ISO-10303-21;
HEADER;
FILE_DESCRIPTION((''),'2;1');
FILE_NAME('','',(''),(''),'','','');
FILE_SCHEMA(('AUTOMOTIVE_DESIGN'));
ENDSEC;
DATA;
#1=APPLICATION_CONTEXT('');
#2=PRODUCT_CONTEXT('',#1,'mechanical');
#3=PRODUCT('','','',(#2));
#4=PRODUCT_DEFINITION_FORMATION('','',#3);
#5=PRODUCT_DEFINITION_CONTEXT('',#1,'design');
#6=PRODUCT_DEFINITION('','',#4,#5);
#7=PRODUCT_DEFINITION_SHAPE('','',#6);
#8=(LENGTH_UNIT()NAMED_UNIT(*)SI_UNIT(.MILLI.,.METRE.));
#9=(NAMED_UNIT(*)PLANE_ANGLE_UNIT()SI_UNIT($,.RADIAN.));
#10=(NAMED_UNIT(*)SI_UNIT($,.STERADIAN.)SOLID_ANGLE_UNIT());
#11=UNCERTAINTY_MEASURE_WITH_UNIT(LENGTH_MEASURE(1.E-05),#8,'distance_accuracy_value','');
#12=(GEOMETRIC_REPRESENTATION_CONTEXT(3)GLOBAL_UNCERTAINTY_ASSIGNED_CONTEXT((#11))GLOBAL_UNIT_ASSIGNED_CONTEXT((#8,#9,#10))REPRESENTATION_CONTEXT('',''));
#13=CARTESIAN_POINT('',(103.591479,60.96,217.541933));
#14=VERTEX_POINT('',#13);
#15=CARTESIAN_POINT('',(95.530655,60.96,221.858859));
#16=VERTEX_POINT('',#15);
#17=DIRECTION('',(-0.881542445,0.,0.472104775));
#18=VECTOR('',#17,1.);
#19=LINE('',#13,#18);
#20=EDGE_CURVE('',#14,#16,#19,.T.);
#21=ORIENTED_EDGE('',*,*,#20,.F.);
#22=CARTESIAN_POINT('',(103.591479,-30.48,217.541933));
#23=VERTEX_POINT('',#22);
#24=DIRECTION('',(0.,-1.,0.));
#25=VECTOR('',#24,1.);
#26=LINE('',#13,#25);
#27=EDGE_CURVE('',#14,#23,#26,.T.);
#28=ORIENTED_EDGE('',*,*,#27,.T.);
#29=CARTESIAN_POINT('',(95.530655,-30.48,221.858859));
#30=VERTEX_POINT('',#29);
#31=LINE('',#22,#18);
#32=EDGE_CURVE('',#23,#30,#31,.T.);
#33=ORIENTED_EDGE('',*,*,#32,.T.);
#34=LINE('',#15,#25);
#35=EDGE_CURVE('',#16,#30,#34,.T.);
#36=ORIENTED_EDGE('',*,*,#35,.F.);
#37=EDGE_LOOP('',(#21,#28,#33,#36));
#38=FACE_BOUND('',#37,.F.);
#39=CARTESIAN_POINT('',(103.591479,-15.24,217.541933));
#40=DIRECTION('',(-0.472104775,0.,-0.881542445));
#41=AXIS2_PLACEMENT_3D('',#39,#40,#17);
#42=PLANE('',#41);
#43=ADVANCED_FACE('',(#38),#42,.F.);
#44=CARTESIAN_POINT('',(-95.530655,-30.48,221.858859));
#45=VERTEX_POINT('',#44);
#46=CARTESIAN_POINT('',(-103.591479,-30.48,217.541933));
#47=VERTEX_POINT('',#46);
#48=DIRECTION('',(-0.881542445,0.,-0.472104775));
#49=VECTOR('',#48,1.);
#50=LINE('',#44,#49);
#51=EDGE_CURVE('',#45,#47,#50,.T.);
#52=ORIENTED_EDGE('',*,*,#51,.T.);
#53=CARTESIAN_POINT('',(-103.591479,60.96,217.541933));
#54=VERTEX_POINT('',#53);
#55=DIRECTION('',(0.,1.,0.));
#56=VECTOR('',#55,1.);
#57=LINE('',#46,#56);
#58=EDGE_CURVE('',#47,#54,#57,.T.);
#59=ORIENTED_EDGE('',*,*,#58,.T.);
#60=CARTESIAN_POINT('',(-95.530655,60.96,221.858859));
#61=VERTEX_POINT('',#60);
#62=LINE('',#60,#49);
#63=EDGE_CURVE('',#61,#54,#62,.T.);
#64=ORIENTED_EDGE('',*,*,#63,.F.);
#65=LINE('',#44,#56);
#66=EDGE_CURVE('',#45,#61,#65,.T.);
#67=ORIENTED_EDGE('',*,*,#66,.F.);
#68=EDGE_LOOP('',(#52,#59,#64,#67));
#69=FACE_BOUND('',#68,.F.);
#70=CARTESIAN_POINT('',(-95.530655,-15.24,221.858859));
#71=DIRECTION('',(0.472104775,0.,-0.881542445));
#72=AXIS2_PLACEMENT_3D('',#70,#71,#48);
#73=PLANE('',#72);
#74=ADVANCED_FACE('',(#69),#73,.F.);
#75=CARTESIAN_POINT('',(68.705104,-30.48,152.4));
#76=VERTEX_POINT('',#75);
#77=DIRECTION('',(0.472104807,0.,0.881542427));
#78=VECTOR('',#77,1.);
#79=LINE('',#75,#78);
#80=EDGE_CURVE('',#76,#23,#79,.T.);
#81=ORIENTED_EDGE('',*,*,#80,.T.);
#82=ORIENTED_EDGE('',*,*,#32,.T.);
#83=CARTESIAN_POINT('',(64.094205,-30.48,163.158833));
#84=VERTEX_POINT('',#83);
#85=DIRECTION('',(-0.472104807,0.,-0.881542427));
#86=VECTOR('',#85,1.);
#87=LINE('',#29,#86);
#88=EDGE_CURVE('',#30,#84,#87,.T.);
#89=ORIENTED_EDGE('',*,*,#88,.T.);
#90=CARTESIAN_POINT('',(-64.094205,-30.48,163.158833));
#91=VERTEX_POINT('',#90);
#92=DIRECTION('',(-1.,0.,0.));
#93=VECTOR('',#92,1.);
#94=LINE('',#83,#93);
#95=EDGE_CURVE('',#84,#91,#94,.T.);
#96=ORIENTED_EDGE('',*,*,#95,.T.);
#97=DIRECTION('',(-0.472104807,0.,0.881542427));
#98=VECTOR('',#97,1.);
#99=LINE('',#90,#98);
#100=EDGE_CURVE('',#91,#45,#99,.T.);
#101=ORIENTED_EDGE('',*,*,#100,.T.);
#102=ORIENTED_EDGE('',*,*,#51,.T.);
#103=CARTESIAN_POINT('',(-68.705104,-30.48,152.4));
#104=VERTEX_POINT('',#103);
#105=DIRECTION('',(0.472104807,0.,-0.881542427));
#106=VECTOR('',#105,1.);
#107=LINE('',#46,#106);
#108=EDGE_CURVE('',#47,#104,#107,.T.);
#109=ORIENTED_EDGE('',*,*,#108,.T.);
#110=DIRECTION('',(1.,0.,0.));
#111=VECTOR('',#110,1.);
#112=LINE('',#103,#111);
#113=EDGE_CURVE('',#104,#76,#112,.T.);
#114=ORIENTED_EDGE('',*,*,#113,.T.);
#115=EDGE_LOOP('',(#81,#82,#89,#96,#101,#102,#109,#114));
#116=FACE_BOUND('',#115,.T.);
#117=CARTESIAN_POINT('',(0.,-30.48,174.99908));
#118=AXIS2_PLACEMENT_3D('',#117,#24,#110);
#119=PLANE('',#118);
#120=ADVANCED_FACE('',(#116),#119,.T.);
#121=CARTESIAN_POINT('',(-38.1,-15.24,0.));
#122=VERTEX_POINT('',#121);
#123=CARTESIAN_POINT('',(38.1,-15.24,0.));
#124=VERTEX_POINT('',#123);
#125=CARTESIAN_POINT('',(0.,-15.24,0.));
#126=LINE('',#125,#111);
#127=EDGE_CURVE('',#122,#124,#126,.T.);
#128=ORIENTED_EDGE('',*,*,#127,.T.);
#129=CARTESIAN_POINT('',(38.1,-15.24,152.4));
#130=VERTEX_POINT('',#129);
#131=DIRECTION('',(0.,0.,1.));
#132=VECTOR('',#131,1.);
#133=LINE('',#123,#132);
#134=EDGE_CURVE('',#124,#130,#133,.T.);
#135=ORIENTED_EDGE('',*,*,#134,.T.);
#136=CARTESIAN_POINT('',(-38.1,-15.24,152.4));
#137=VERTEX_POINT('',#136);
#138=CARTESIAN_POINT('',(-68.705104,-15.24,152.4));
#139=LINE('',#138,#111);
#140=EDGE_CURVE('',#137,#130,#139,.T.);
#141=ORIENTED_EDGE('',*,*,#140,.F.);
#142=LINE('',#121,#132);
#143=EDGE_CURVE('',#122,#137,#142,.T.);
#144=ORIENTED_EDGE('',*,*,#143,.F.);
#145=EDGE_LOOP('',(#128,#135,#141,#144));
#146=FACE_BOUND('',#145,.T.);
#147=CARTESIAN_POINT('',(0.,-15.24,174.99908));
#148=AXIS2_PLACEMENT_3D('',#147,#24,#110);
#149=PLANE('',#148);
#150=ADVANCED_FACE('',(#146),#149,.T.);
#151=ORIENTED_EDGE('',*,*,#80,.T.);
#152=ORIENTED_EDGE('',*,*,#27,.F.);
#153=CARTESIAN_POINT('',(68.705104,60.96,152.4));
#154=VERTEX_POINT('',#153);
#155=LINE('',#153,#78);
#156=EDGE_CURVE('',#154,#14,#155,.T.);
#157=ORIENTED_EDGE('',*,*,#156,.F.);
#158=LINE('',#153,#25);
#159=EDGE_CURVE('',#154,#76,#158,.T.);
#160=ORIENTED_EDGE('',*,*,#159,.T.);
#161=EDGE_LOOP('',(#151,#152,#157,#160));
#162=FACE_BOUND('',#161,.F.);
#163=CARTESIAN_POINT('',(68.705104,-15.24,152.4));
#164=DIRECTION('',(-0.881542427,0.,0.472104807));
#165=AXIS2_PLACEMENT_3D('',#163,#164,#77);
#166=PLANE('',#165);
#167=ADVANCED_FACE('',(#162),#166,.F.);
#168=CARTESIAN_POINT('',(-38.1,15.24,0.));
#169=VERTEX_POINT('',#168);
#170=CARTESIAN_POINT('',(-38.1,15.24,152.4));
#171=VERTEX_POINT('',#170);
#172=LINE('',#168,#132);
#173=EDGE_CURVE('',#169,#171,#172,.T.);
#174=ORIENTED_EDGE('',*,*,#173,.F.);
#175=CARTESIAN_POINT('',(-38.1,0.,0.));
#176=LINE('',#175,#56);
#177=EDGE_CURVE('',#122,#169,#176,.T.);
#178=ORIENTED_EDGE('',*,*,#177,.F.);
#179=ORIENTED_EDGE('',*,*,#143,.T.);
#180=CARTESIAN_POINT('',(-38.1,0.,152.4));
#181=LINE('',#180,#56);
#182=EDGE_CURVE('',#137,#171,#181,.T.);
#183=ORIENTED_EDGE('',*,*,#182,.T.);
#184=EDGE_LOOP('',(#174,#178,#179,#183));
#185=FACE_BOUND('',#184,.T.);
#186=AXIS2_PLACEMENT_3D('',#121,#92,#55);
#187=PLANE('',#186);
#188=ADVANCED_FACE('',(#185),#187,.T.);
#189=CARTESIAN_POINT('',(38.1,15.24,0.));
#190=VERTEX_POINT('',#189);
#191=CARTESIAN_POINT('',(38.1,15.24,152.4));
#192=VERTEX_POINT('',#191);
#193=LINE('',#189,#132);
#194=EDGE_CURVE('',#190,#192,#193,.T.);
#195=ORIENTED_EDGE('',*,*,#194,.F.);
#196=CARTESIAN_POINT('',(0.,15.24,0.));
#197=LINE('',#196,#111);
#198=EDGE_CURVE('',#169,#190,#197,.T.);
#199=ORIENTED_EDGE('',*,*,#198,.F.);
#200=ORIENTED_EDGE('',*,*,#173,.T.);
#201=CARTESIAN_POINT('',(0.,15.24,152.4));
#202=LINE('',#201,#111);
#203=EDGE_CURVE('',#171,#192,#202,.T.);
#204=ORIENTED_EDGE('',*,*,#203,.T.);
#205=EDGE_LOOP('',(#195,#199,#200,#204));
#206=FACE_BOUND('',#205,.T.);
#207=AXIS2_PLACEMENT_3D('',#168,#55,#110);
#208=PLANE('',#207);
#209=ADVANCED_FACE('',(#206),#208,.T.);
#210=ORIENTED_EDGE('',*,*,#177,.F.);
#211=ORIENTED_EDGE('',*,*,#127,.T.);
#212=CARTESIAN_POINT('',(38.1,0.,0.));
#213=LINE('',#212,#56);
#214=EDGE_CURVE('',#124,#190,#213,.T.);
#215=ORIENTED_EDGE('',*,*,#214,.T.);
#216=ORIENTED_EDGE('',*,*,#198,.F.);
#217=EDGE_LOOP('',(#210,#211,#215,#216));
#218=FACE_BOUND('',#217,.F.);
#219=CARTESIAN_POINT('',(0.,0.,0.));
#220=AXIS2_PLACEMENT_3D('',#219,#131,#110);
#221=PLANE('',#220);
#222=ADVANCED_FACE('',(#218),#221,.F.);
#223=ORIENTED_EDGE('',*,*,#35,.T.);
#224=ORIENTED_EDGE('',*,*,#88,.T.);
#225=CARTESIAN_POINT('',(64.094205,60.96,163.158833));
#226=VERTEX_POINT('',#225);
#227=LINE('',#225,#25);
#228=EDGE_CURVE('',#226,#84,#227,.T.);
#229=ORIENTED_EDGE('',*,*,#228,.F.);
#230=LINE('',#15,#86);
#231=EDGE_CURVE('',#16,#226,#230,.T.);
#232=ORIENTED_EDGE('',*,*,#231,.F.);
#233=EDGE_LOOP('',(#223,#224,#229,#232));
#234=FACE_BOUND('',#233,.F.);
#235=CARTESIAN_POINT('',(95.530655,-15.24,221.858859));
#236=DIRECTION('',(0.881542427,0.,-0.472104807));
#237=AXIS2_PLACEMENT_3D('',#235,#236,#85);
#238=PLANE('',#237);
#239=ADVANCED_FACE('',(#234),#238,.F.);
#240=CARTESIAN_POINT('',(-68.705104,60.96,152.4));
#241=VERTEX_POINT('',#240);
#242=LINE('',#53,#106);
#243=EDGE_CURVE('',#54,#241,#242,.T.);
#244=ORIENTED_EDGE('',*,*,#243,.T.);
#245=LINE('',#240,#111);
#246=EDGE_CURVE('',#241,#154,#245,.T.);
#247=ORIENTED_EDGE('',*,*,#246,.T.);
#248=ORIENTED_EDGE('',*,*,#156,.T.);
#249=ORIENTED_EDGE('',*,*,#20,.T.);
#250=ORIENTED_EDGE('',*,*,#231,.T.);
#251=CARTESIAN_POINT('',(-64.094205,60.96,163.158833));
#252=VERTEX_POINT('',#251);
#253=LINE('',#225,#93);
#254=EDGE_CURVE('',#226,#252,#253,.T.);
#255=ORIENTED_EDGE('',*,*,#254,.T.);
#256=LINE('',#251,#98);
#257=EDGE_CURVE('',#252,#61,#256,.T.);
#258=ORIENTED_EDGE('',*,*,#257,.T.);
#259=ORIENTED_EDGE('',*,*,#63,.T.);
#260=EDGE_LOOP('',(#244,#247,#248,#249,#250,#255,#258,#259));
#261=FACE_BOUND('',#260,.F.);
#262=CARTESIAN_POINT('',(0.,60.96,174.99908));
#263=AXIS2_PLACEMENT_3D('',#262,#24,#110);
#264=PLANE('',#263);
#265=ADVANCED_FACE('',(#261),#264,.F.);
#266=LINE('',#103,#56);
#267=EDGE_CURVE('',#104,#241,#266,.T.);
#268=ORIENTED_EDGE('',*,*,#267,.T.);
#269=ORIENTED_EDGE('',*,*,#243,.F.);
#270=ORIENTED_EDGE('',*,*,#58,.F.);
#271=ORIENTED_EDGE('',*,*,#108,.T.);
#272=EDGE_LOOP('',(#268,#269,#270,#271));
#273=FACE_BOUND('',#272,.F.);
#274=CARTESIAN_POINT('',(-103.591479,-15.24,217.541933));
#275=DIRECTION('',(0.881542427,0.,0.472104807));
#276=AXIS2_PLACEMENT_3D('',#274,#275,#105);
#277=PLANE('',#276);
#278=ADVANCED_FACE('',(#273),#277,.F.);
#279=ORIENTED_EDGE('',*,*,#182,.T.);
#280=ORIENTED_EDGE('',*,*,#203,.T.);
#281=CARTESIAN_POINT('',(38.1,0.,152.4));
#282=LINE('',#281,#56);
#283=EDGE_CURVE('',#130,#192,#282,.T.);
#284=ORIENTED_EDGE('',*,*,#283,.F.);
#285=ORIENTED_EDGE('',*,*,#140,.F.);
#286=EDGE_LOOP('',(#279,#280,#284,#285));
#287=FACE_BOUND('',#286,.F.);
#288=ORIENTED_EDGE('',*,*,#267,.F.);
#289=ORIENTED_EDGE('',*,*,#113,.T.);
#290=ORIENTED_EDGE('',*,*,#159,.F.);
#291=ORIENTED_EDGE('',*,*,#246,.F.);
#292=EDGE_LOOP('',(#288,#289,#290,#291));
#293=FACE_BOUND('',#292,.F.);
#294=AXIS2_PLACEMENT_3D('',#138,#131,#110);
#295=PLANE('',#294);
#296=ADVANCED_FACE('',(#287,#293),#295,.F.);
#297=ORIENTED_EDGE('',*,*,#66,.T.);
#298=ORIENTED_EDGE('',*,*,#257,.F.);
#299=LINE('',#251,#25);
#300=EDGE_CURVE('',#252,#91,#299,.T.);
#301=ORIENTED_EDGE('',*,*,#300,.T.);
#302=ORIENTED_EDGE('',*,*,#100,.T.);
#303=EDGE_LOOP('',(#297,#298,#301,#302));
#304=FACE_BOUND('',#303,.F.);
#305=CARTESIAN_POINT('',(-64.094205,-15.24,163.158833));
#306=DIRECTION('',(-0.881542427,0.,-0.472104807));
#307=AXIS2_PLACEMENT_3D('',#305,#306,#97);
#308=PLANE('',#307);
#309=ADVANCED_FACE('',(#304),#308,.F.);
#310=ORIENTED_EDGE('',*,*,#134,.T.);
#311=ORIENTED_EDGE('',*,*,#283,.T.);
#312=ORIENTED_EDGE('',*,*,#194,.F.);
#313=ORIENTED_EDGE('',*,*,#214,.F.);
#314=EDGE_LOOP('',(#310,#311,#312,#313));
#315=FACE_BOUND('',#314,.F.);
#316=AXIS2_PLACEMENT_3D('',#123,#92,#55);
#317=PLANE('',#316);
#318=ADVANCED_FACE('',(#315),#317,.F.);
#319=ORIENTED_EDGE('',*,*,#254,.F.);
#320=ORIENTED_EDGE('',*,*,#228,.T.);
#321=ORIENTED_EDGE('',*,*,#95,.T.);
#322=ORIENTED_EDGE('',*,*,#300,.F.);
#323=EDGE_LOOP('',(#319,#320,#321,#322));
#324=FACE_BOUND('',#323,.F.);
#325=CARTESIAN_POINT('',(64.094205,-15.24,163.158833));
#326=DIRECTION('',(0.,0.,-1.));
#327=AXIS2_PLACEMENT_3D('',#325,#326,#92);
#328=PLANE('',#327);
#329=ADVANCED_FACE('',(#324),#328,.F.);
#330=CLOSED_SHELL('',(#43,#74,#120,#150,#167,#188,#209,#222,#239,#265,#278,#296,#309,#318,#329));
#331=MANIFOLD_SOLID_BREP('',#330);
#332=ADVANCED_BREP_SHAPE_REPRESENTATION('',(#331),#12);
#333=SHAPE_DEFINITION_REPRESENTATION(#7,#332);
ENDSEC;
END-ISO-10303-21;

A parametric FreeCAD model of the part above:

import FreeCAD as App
import Part
import Sketcher
Q = App.Units.Quantity


def add_polygon(sketch, points):
    """Adds a closed chain of lines whose ends are joined by coincident constraints."""
    first, n = sketch.GeometryCount, len(points)
    for a, b in zip(points, points[1:] + points[:1]):
        sketch.addGeometry(Part.LineSegment(App.Vector(*a, 0), App.Vector(*b, 0)), False)
    for i in range(n):
        sketch.addConstraint(Sketcher.Constraint("Coincident", first + i, 2, first + (i + 1) % n, 1))

doc = App.newDocument("Part")
params = doc.addObject("Spreadsheet::Sheet", "Params")
for row, (alias, value) in enumerate([
    ("sketch1_width", "3 in"),
    ("sketch1_height", "1.2 in"),
    ("pad1_length", "6 in"),
    ("sketch2_length", "0.36 in"),
    ("pad2_length", "3 in"),
    ("sketch3_length", "0.36 in"),
    ("pad3_length", "0.6 in"),
], start=1):
    params.set(f"A{row}", alias)
    params.set(f"B{row}", "=" + value)
    params.setAlias(f"B{row}", alias)

body = doc.addObject("PartDesign::Body", "Body")

sketch1 = body.newObject("Sketcher::SketchObject", "Sketch")
sketch1.AttachmentSupport = (doc.getObject("XY_Plane"), [""])
sketch1.MapMode = "FlatFace"
add_polygon(sketch1, [(-38.1, 15.24), (-38.1, -15.24), (38.1, -15.24), (38.1, 15.24)])
sketch1.addConstraint(Sketcher.Constraint("Vertical", 0))
sketch1.addConstraint(Sketcher.Constraint("Horizontal", 1))
sketch1.addConstraint(Sketcher.Constraint("Vertical", 2))
sketch1.addConstraint(Sketcher.Constraint("Horizontal", 3))
sketch1.addConstraint(Sketcher.Constraint("Symmetric", 0, 2, 2, 2, -1, 1))
sketch1.addConstraint(Sketcher.Constraint("DistanceX", 1, 1, 1, 2, Q("3 in")))
sketch1.addConstraint(Sketcher.Constraint("DistanceY", 0, 2, 0, 1, Q("1.2 in")))
sketch1.setExpression("Constraints[9]", "Params.sketch1_width")
sketch1.setExpression("Constraints[10]", "Params.sketch1_height")
pad1 = body.newObject("PartDesign::Pad", "Pad")
pad1.Profile = sketch1
pad1.setExpression("Length", "Params.pad1_length")

sketch2 = body.newObject("Sketcher::SketchObject", "Sketch001")
sketch2.AttachmentSupport = (doc.getObject("XZ_Plane"), [""])
sketch2.MapMode = "FlatFace"
sketch2.AttachmentOffset = App.Placement(App.Vector(0, 0, 0.6 * 25.4), App.Rotation())
add_polygon(sketch2, [(-68.705104, 152.4), (68.705104, 152.4), (103.591479, 217.541933), (95.530655, 221.858859), (64.094205, 163.158833), (-64.094205, 163.158833), (-95.530655, 221.858859), (-103.591479, 217.541933)])
sketch2.addConstraint(Sketcher.Constraint("Horizontal", 0))
sketch2.addConstraint(Sketcher.Constraint("Horizontal", 4))
sketch2.addConstraint(Sketcher.Constraint("Symmetric", 2, 2, 5, 2, -2))
sketch2.addConstraint(Sketcher.Constraint("Symmetric", 1, 2, 6, 2, -2))
sketch2.addConstraint(Sketcher.Constraint("Perpendicular", 1, 2))
sketch2.addConstraint(Sketcher.Constraint("Perpendicular", 2, 3))
sketch2.addConstraint(Sketcher.Constraint("Perpendicular", 5, 6))
sketch2.addConstraint(Sketcher.Constraint("Perpendicular", 6, 7))
sketch2.addConstraint(Sketcher.Constraint("DistanceY", -1, 1, 0, 2, Q("6 in")))
sketch2.addConstraint(Sketcher.Constraint("Distance", 2, Q("0.36 in")))
sketch2.addConstraint(Sketcher.Constraint("DistanceX", 0, 1, 0, 2, Q("137.410208 mm")))
sketch2.addConstraint(Sketcher.Constraint("DistanceX", 4, 2, 4, 1, Q("128.18841 mm")))
sketch2.addConstraint(Sketcher.Constraint("DistanceY", 3, 2, 1, 2, Q("54.3831 mm")))
sketch2.addConstraint(Sketcher.Constraint("DistanceX", -1, 1, 1, 2, Q("103.591479 mm")))
sketch2.setExpression("Constraints[17]", "Params.sketch2_length")
pad2 = body.newObject("PartDesign::Pad", "Pad001")
pad2.Profile = sketch2
pad2.setExpression("Length", "Params.pad2_length")
pad2.Reversed = True

sketch3 = body.newObject("Sketcher::SketchObject", "Sketch002")
sketch3.AttachmentSupport = (doc.getObject("XZ_Plane"), [""])
sketch3.MapMode = "FlatFace"
sketch3.AttachmentOffset = App.Placement(App.Vector(0, 0, 0.6 * 25.4), App.Rotation())
add_polygon(sketch3, [(-68.705104, 152.4), (68.705104, 152.4), (103.591479, 217.541933), (95.530655, 221.858859), (64.094205, 163.158833), (-64.094205, 163.158833), (-95.530655, 221.858859), (-103.591479, 217.541933)])
sketch3.addConstraint(Sketcher.Constraint("Horizontal", 0))
sketch3.addConstraint(Sketcher.Constraint("Horizontal", 4))
sketch3.addConstraint(Sketcher.Constraint("Symmetric", 2, 2, 5, 2, -2))
sketch3.addConstraint(Sketcher.Constraint("Symmetric", 1, 2, 6, 2, -2))
sketch3.addConstraint(Sketcher.Constraint("Perpendicular", 1, 2))
sketch3.addConstraint(Sketcher.Constraint("Perpendicular", 2, 3))
sketch3.addConstraint(Sketcher.Constraint("Perpendicular", 5, 6))
sketch3.addConstraint(Sketcher.Constraint("Perpendicular", 6, 7))
sketch3.addConstraint(Sketcher.Constraint("DistanceY", -1, 1, 0, 2, Q("6 in")))
sketch3.addConstraint(Sketcher.Constraint("Distance", 2, Q("0.36 in")))
sketch3.addConstraint(Sketcher.Constraint("DistanceX", 0, 1, 0, 2, Q("137.410208 mm")))
sketch3.addConstraint(Sketcher.Constraint("DistanceX", 4, 2, 4, 1, Q("128.18841 mm")))
sketch3.addConstraint(Sketcher.Constraint("DistanceY", 3, 2, 1, 2, Q("54.3831 mm")))
sketch3.addConstraint(Sketcher.Constraint("DistanceX", -1, 1, 1, 2, Q("103.591479 mm")))
sketch3.setExpression("Constraints[17]", "Params.sketch3_length")
pad3 = body.newObject("PartDesign::Pad", "Pad002")
pad3.Profile = sketch3
pad3.setExpression("Length", "Params.pad3_length")

doc.recompute()
